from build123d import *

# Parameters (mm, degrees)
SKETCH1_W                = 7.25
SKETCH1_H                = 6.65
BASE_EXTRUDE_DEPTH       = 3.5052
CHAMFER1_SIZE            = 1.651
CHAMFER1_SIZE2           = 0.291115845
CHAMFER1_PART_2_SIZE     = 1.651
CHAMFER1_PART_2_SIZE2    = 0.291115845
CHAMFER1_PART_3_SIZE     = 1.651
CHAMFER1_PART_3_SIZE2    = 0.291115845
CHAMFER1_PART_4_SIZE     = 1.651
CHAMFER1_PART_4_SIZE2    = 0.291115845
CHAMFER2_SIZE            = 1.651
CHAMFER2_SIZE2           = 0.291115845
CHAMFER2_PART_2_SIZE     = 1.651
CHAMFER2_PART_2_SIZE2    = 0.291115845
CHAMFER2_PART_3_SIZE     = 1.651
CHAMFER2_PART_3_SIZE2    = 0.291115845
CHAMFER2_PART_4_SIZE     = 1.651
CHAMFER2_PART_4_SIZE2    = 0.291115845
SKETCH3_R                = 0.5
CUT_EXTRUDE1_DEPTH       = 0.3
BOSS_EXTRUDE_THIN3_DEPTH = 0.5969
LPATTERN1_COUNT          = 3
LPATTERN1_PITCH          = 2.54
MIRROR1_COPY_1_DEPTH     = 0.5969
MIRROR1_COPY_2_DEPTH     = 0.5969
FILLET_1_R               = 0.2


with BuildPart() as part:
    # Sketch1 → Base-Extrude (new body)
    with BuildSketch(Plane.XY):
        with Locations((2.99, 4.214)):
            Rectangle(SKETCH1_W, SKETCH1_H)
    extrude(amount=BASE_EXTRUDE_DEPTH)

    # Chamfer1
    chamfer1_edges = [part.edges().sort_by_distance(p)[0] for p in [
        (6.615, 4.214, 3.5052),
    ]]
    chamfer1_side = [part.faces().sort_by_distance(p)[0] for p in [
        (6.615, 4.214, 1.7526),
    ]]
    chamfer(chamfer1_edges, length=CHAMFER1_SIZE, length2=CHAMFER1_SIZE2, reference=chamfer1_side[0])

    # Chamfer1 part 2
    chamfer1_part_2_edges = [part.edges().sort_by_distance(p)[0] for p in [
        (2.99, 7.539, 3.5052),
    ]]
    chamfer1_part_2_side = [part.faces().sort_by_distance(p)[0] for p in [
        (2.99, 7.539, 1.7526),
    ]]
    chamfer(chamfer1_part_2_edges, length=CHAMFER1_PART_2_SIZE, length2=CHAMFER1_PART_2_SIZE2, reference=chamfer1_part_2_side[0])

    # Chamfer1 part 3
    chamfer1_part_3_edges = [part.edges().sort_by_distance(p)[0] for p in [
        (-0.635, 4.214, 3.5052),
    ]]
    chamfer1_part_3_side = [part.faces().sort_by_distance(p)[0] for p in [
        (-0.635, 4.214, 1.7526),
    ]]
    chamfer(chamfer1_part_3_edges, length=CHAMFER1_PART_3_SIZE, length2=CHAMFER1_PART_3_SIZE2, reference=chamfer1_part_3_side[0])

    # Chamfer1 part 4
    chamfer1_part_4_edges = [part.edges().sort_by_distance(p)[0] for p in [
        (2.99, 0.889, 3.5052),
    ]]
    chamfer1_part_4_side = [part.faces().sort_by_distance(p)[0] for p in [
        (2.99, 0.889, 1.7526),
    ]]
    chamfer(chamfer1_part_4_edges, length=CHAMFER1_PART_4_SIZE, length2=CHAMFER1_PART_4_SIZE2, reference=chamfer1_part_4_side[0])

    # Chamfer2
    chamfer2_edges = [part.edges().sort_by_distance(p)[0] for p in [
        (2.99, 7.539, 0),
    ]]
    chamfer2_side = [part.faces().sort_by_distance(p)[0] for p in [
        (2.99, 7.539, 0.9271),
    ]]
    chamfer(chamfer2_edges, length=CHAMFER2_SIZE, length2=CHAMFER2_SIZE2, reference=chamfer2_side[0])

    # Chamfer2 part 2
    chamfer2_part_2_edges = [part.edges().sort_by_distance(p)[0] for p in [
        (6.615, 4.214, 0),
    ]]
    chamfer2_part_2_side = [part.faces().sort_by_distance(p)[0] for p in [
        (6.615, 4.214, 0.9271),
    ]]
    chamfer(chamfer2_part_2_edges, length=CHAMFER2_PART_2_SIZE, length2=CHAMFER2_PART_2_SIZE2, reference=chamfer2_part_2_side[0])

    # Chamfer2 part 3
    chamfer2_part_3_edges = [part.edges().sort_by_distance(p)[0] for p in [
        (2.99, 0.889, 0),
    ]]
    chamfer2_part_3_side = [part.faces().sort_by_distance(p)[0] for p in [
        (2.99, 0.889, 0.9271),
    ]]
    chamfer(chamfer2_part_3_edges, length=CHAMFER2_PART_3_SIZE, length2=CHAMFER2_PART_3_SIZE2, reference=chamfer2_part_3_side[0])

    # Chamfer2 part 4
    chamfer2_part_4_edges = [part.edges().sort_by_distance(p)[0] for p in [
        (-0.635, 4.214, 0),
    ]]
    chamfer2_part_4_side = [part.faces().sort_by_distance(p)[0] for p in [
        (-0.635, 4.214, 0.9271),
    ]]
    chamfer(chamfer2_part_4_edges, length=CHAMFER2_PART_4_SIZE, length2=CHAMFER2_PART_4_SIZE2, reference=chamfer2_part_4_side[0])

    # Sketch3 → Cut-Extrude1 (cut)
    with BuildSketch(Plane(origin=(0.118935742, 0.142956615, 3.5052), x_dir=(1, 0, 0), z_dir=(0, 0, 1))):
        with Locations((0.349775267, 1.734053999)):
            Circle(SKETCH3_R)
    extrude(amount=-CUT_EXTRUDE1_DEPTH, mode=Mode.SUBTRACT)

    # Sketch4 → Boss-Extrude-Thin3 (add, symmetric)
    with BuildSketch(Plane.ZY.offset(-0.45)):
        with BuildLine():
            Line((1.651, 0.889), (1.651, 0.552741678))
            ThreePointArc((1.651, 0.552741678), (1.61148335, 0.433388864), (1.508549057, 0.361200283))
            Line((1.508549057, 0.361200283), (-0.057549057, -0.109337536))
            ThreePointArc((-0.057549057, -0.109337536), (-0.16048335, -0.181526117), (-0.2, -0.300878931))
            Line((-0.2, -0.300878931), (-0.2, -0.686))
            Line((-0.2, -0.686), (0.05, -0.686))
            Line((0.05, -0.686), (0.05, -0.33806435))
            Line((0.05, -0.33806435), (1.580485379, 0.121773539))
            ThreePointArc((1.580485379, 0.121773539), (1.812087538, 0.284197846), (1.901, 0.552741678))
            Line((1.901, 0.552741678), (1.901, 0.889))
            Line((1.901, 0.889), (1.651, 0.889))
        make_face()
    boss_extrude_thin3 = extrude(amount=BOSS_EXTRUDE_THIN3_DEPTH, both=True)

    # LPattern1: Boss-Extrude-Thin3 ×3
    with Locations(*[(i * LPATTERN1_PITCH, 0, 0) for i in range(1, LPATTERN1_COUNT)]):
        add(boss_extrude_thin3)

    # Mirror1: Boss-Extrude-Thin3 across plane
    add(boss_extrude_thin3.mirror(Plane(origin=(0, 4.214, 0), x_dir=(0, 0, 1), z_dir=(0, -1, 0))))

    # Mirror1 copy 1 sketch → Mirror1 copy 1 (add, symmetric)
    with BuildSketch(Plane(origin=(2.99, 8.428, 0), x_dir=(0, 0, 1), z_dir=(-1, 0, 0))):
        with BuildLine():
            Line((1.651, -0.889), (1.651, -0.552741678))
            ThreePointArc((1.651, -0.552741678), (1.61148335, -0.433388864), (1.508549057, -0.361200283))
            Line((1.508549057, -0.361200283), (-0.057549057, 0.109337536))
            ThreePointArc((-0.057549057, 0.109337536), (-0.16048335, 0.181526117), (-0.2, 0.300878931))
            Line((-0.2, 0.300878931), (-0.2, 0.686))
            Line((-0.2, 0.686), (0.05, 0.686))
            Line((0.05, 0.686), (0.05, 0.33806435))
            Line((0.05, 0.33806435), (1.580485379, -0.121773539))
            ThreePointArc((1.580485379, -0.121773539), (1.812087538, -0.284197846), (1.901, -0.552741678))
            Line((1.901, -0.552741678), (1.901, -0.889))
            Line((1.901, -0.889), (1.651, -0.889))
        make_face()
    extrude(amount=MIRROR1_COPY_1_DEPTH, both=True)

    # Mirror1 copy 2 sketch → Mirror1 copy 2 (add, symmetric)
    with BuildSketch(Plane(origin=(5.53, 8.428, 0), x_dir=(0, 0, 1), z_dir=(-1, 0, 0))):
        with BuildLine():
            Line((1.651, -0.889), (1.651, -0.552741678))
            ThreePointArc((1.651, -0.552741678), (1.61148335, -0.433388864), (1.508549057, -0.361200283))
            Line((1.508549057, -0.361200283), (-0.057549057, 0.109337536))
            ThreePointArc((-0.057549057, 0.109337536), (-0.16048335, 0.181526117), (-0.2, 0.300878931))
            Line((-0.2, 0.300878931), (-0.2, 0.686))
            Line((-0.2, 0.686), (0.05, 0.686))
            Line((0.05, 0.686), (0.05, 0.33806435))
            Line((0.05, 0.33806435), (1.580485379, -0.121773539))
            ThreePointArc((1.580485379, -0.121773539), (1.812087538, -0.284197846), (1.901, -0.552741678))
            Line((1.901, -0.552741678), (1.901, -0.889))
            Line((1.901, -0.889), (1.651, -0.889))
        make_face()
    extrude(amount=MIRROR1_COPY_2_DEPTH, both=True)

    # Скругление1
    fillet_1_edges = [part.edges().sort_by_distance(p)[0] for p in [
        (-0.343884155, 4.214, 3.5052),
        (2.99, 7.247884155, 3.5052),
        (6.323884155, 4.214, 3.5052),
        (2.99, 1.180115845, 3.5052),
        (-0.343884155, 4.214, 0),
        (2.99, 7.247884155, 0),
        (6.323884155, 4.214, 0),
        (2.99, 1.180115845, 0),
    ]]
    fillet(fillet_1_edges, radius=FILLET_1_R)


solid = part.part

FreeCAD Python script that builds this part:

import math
import FreeCAD as App
import Part
import Sketcher
from FreeCAD import Vector


def edges_at(feature, points):
    """Names of the edges that pass closest to the given points."""
    edges = feature.Shape.Edges
    near = lambda p: min(range(len(edges)), key=lambda i: edges[i].distToShape(Part.Vertex(*p))[0])
    return sorted({f"Edge{near(p) + 1}" for p in points})


def add_polygon(sketch, points):
    """Adds a closed chain of lines whose ends are joined by coincident constraints."""
    first, n = sketch.GeometryCount, len(points)
    for a, b in zip(points, points[1:] + points[:1]):
        sketch.addGeometry(Part.LineSegment(App.Vector(*a, 0), App.Vector(*b, 0)), False)
    for i in range(n):
        sketch.addConstraint(Sketcher.Constraint("Coincident", first + i, 2, first + (i + 1) % n, 1))

doc = App.newDocument("Part")
body = doc.addObject("PartDesign::Body", "Body")

# Sketch on XY plane
sketch1 = body.newObject("Sketcher::SketchObject", "Sketch")
sketch1.AttachmentSupport = (doc.getObject("XY_Plane"), [""])
sketch1.MapMode = "FlatFace"
add_polygon(sketch1, [(-1, 8), (-1, 1), (7, 1), (7, 8)])  # lines 0-3
sketch1.addConstraint([
    Sketcher.Constraint("Vertical", 0),
    Sketcher.Constraint("Horizontal", 1),
    Sketcher.Constraint("Vertical", 2),
    Sketcher.Constraint("Horizontal", 3),
    Sketcher.Constraint("DistanceX", 1, 1, 1, 2, 7.25),
    Sketcher.Constraint("DistanceY", 0, 2, 0, 1, 6.65),
    Sketcher.Constraint("DistanceX", 0, 2, -1, 1, 0.635),
    Sketcher.Constraint("DistanceY", -1, 1, 0, 2, 0.889),
])
pad1 = body.newObject("PartDesign::Pad", "Pad")
pad1.Profile = sketch1
pad1.Length = 3.5052
doc.recompute()

chamfer = body.newObject("PartDesign::Chamfer", "Chamfer")
chamfer.Base = (pad1, edges_at(pad1, [(6.615, 4.214, 3.505)]))
chamfer.ChamferType = "Two distances"
chamfer.Size = 1.651
chamfer.Size2 = 0.291116
doc.recompute()

chamfer2 = body.newObject("PartDesign::Chamfer", "Chamfer001")
chamfer2.Base = (chamfer, edges_at(chamfer, [(2.844, 7.539, 3.505)]))
chamfer2.ChamferType = "Two distances"
chamfer2.Size = 1.651
chamfer2.Size2 = 0.291116
chamfer2.FlipDirection = True
doc.recompute()

chamfer3 = body.newObject("PartDesign::Chamfer", "Chamfer002")
chamfer3.Base = (chamfer2, edges_at(chamfer2, [(-0.635, 4.068, 3.505)]))
chamfer3.ChamferType = "Two distances"
chamfer3.Size = 1.651
chamfer3.Size2 = 0.291116
chamfer3.FlipDirection = True
doc.recompute()

chamfer4 = body.newObject("PartDesign::Chamfer", "Chamfer003")
chamfer4.Base = (chamfer3, edges_at(chamfer3, [(2.99, 0.889, 3.505)]))
chamfer4.ChamferType = "Two distances"
chamfer4.Size = 1.651
chamfer4.Size2 = 0.291116
chamfer4.FlipDirection = True
doc.recompute()

chamfer5 = body.newObject("PartDesign::Chamfer", "Chamfer004")
chamfer5.Base = (chamfer4, edges_at(chamfer4, [(2.99, 7.539, 0)]))
chamfer5.ChamferType = "Two distances"
chamfer5.Size = 1.651
chamfer5.Size2 = 0.291116
doc.recompute()

chamfer6 = body.newObject("PartDesign::Chamfer", "Chamfer005")
chamfer6.Base = (chamfer5, edges_at(chamfer5, [(6.615, 4.068, 0)]))
chamfer6.ChamferType = "Two distances"
chamfer6.Size = 1.651
chamfer6.Size2 = 0.291116
chamfer6.FlipDirection = True
doc.recompute()

chamfer7 = body.newObject("PartDesign::Chamfer", "Chamfer006")
chamfer7.Base = (chamfer6, edges_at(chamfer6, [(2.844, 0.889, 0)]))
chamfer7.ChamferType = "Two distances"
chamfer7.Size = 1.651
chamfer7.Size2 = 0.291116
chamfer7.FlipDirection = True
doc.recompute()

chamfer8 = body.newObject("PartDesign::Chamfer", "Chamfer007")
chamfer8.Base = (chamfer7, edges_at(chamfer7, [(-0.635, 4.214, 0)]))
chamfer8.ChamferType = "Two distances"
chamfer8.Size = 1.651
chamfer8.Size2 = 0.291116
chamfer8.FlipDirection = True

# Sketch on XY plane
sketch2 = body.newObject("Sketcher::SketchObject", "Sketch001")
sketch2.AttachmentSupport = (doc.getObject("XY_Plane"), [""])
sketch2.MapMode = "FlatFace"
sketch2.AttachmentOffset = App.Placement(Vector(0, 0, 3.5052), App.Rotation())
sketch2.addGeometry(Part.Circle(Vector(0.5, 1.9, 0), Vector(0, 0, 1), 0.5), False)
sketch2.addConstraint([
    Sketcher.Constraint("Diameter", 0, 1.0),
    Sketcher.Constraint("DistanceX", -1, 1, 0, 3, 0.468711),
    Sketcher.Constraint("DistanceY", -1, 1, 0, 3, 1.877011),
])
pocket1 = body.newObject("PartDesign::Pocket", "Pocket")
pocket1.Profile = sketch2
pocket1.Length = 0.3

# Sketch on YZ plane
sketch3 = body.newObject("Sketcher::SketchObject", "Sketch002")
sketch3.AttachmentSupport = (doc.getObject("YZ_Plane"), [""])
sketch3.MapMode = "FlatFace"
sketch3.AttachmentOffset = App.Placement(Vector(0, 0, 0.45), App.Rotation())
sketch3.addGeometry([
    Part.LineSegment(Vector(0.89, 1.65, 0), Vector(0.55, 1.65, 0)),  # 0
    Part.ArcOfCircle(Part.Circle(Vector(0.55, 1.45, 0), Vector(0, 0, 1), 0.2), math.radians(90), math.radians(163)),  # 1
    Part.LineSegment(Vector(0.36, 1.51, 0), Vector(-0.11, -0.06, 0)),  # 2
    Part.ArcOfCircle(Part.Circle(Vector(-0.3, 0, 0), Vector(0, 0, 1), 0.2), math.radians(-90), math.radians(-17)),  # 3
    Part.LineSegment(Vector(-0.3, -0.2, 0), Vector(-0.69, -0.2, 0)),  # 4
    Part.LineSegment(Vector(-0.69, -0.2, 0), Vector(-0.69, 0.05, 0)),  # 5
    Part.LineSegment(Vector(-0.69, 0.05, 0), Vector(-0.34, 0.05, 0)),  # 6
    Part.LineSegment(Vector(-0.34, 0.05, 0), Vector(0.12, 1.58, 0)),  # 7
    Part.ArcOfCircle(Part.Circle(Vector(0.55, 1.45, 0), Vector(0, 0, 1), 0.45), math.radians(90), math.radians(163)),  # 8
    Part.LineSegment(Vector(0.55, 1.9, 0), Vector(0.89, 1.9, 0)),  # 9
    Part.LineSegment(Vector(0.89, 1.9, 0), Vector(0.89, 1.65, 0)),  # 10
], False)
sketch3.addConstraint([
    Sketcher.Constraint("Tangent", 0, 2, 1, 1),
    Sketcher.Constraint("Tangent", 1, 2, 2, 1),
    Sketcher.Constraint("Tangent", 2, 2, 3, 2),
    Sketcher.Constraint("Tangent", 3, 1, 4, 1),
    Sketcher.Constraint("Coincident", 4, 2, 5, 1),
    Sketcher.Constraint("Coincident", 5, 2, 6, 1),
    Sketcher.Constraint("Coincident", 6, 2, 7, 1),
    Sketcher.Constraint("Tangent", 7, 2, 8, 2),
    Sketcher.Constraint("Tangent", 8, 1, 9, 1),
    Sketcher.Constraint("Coincident", 9, 2, 10, 1),
    Sketcher.Constraint("Coincident", 10, 2, 0, 1),
    Sketcher.Constraint("Horizontal", 0),
    Sketcher.Constraint("Horizontal", 4),
    Sketcher.Constraint("Vertical", 5),
    Sketcher.Constraint("Horizontal", 6),
    Sketcher.Constraint("Horizontal", 9),
    Sketcher.Constraint("Vertical", 10),
    Sketcher.Constraint("Coincident", 8, 3, 1, 3),
    Sketcher.Constraint("Equal", 1, 3),
    Sketcher.Constraint("PointOnObject", 3, 3, -1),
    Sketcher.Constraint("Parallel", 2, 7),
    Sketcher.Constraint("Equal", 5, 10),
    Sketcher.Constraint("Radius", 1, 0.2),
    Sketcher.Constraint("Radius", 8, 0.45),
    Sketcher.Constraint("DistanceY", -1, 1, 1, 3, 1.451),
    Sketcher.Constraint("DistanceX", 4, 2, -1, 1, 0.686),
    Sketcher.Constraint("DistanceX", -1, 1, 9, 2, 0.889),
    Sketcher.Constraint("DistanceX", 0, 2, 0, 1, 0.336258),
    Sketcher.Constraint("DistanceX", 4, 2, 4, 1, 0.385121),
])
pad2 = body.newObject("PartDesign::Pad", "Pad001")
pad2.Profile = sketch3
pad2.Length = 1.1938
pad2.Midplane = True
doc.recompute()

linearpattern = body.newObject("PartDesign::LinearPattern", "LinearPattern")
linearpattern.Originals = [pad2]
linearpattern.Direction = (doc.getObject("X_Axis"), [""])
linearpattern.Mode = "offset"
linearpattern.Offset = 2.54
linearpattern.Occurrences = 3
body.Tip = linearpattern
doc.recompute()

datumplane = body.newObject("PartDesign::Plane", "DatumPlane")
datumplane.AttachmentSupport = (doc.getObject("XZ_Plane"), [""])
datumplane.MapMode = "FlatFace"
datumplane.AttachmentOffset = App.Placement(Vector(0, 0, -4.214), App.Rotation())
mirrored = body.newObject("PartDesign::Mirrored", "Mirrored")
mirrored.Originals = [pad2]
mirrored.MirrorPlane = (datumplane, [""])
body.Tip = mirrored

# Sketch on YZ plane
sketch4 = body.newObject("Sketcher::SketchObject", "Sketch003")
sketch4.AttachmentSupport = (doc.getObject("YZ_Plane"), [""])
sketch4.MapMode = "FlatFace"
sketch4.AttachmentOffset = App.Placement(Vector(0, 0, 2.99), App.Rotation())
sketch4.addGeometry([
    Part.LineSegment(Vector(7.88, 1.65, 0), Vector(7.54, 1.65, 0)),  # 0
    Part.LineSegment(Vector(7.54, 1.65, 0), Vector(7.54, 1.9, 0)),  # 1
    Part.LineSegment(Vector(7.54, 1.9, 0), Vector(7.88, 1.9, 0)),  # 2
    Part.ArcOfCircle(Part.Circle(Vector(7.88, 1.45, 0), Vector(0, 0, 1), 0.45), math.radians(17), math.radians(90)),  # 3
    Part.LineSegment(Vector(8.31, 1.58, 0), Vector(8.77, 0.05, 0)),  # 4
    Part.LineSegment(Vector(8.77, 0.05, 0), Vector(9.11, 0.05, 0)),  # 5
    Part.LineSegment(Vector(9.11, 0.05, 0), Vector(9.11, -0.2, 0)),  # 6
    Part.LineSegment(Vector(9.11, -0.2, 0), Vector(8.73, -0.2, 0)),  # 7
    Part.ArcOfCircle(Part.Circle(Vector(8.73, 0, 0), Vector(0, 0, 1), 0.2), math.radians(-163), math.radians(-90)),  # 8
    Part.LineSegment(Vector(8.54, -0.06, 0), Vector(8.07, 1.51, 0)),  # 9
    Part.ArcOfCircle(Part.Circle(Vector(7.88, 1.45, 0), Vector(0, 0, 1), 0.2), math.radians(17), math.radians(90)),  # 10
], False)
sketch4.addConstraint([
    Sketcher.Constraint("Coincident", 0, 2, 1, 1),
    Sketcher.Constraint("Coincident", 1, 2, 2, 1),
    Sketcher.Constraint("Tangent", 2, 2, 3, 2),
    Sketcher.Constraint("Tangent", 3, 1, 4, 1),
    Sketcher.Constraint("Coincident", 4, 2, 5, 1),
    Sketcher.Constraint("Coincident", 5, 2, 6, 1),
    Sketcher.Constraint("Coincident", 6, 2, 7, 1),
    Sketcher.Constraint("Tangent", 7, 2, 8, 2),
    Sketcher.Constraint("Tangent", 8, 1, 9, 1),
    Sketcher.Constraint("Tangent", 9, 2, 10, 1),
    Sketcher.Constraint("Tangent", 10, 2, 0, 1),
    Sketcher.Constraint("Horizontal", 0),
    Sketcher.Constraint("Vertical", 1),
    Sketcher.Constraint("Horizontal", 2),
    Sketcher.Constraint("Horizontal", 5),
    Sketcher.Constraint("Vertical", 6),
    Sketcher.Constraint("Horizontal", 7),
    Sketcher.Constraint("Coincident", 10, 3, 3, 3),
    Sketcher.Constraint("Equal", 8, 10),
    Sketcher.Constraint("PointOnObject", 8, 3, -1),
    Sketcher.Constraint("Parallel", 4, 9),
    Sketcher.Constraint("Equal", 1, 6),
    Sketcher.Constraint("Radius", 8, 0.2),
    Sketcher.Constraint("Radius", 3, 0.45),
    Sketcher.Constraint("DistanceY", -1, 1, 3, 3, 1.451),
    Sketcher.Constraint("DistanceX", -1, 1, 0, 2, 7.539),
    Sketcher.Constraint("DistanceX", -1, 1, 5, 2, 9.114),
    Sketcher.Constraint("DistanceX", 0, 2, 0, 1, 0.336258),
    Sketcher.Constraint("DistanceX", 7, 2, 7, 1, 0.385121),
])
pad3 = body.newObject("PartDesign::Pad", "Pad002")
pad3.Profile = sketch4
pad3.Length = 1.1938
pad3.Midplane = True

# Sketch on YZ plane
sketch5 = body.newObject("Sketcher::SketchObject", "Sketch004")
sketch5.AttachmentSupport = (doc.getObject("YZ_Plane"), [""])
sketch5.MapMode = "FlatFace"
sketch5.AttachmentOffset = App.Placement(Vector(0, 0, 5.53), App.Rotation())
sketch5.addGeometry([
    Part.LineSegment(Vector(7.88, 1.65, 0), Vector(7.54, 1.65, 0)),  # 0
    Part.LineSegment(Vector(7.54, 1.65, 0), Vector(7.54, 1.9, 0)),  # 1
    Part.LineSegment(Vector(7.54, 1.9, 0), Vector(7.88, 1.9, 0)),  # 2
    Part.ArcOfCircle(Part.Circle(Vector(7.88, 1.45, 0), Vector(0, 0, 1), 0.45), math.radians(17), math.radians(90)),  # 3
    Part.LineSegment(Vector(8.31, 1.58, 0), Vector(8.77, 0.05, 0)),  # 4
    Part.LineSegment(Vector(8.77, 0.05, 0), Vector(9.11, 0.05, 0)),  # 5
    Part.LineSegment(Vector(9.11, 0.05, 0), Vector(9.11, -0.2, 0)),  # 6
    Part.LineSegment(Vector(9.11, -0.2, 0), Vector(8.73, -0.2, 0)),  # 7
    Part.ArcOfCircle(Part.Circle(Vector(8.73, 0, 0), Vector(0, 0, 1), 0.2), math.radians(-163), math.radians(-90)),  # 8
    Part.LineSegment(Vector(8.54, -0.06, 0), Vector(8.07, 1.51, 0)),  # 9
    Part.ArcOfCircle(Part.Circle(Vector(7.88, 1.45, 0), Vector(0, 0, 1), 0.2), math.radians(17), math.radians(90)),  # 10
], False)
sketch5.addConstraint([
    Sketcher.Constraint("Coincident", 0, 2, 1, 1),
    Sketcher.Constraint("Coincident", 1, 2, 2, 1),
    Sketcher.Constraint("Tangent", 2, 2, 3, 2),
    Sketcher.Constraint("Tangent", 3, 1, 4, 1),
    Sketcher.Constraint("Coincident", 4, 2, 5, 1),
    Sketcher.Constraint("Coincident", 5, 2, 6, 1),
    Sketcher.Constraint("Coincident", 6, 2, 7, 1),
    Sketcher.Constraint("Tangent", 7, 2, 8, 2),
    Sketcher.Constraint("Tangent", 8, 1, 9, 1),
    Sketcher.Constraint("Tangent", 9, 2, 10, 1),
    Sketcher.Constraint("Tangent", 10, 2, 0, 1),
    Sketcher.Constraint("Horizontal", 0),
    Sketcher.Constraint("Vertical", 1),
    Sketcher.Constraint("Horizontal", 2),
    Sketcher.Constraint("Horizontal", 5),
    Sketcher.Constraint("Vertical", 6),
    Sketcher.Constraint("Horizontal", 7),
    Sketcher.Constraint("Coincident", 10, 3, 3, 3),
    Sketcher.Constraint("Equal", 8, 10),
    Sketcher.Constraint("PointOnObject", 8, 3, -1),
    Sketcher.Constraint("Parallel", 4, 9),
    Sketcher.Constraint("Equal", 1, 6),
    Sketcher.Constraint("Radius", 8, 0.2),
    Sketcher.Constraint("Radius", 3, 0.45),
    Sketcher.Constraint("DistanceY", -1, 1, 3, 3, 1.451),
    Sketcher.Constraint("DistanceX", -1, 1, 0, 2, 7.539),
    Sketcher.Constraint("DistanceX", -1, 1, 5, 2, 9.114),
    Sketcher.Constraint("DistanceX", 0, 2, 0, 1, 0.336258),
    Sketcher.Constraint("DistanceX", 7, 2, 7, 1, 0.385121),
])
pad4 = body.newObject("PartDesign::Pad", "Pad003")
pad4.Profile = sketch5
pad4.Length = 1.1938
pad4.Midplane = True
doc.recompute()

fillet = body.newObject("PartDesign::Fillet", "Fillet")
fillet.Base = (pad4, edges_at(pad4, [
    (-0.344, 4.214, 3.505),
    (2.99, 7.248, 3.505),
    (6.324, 4.214, 3.505),
    (2.99, 1.18, 3.505),
    (-0.344, 4.214, 0),
    (2.99, 7.248, 0),
    (6.324, 4.214, 0),
    (2.99, 1.18, 0),
]))
fillet.Radius = 0.2

doc.recompute()
